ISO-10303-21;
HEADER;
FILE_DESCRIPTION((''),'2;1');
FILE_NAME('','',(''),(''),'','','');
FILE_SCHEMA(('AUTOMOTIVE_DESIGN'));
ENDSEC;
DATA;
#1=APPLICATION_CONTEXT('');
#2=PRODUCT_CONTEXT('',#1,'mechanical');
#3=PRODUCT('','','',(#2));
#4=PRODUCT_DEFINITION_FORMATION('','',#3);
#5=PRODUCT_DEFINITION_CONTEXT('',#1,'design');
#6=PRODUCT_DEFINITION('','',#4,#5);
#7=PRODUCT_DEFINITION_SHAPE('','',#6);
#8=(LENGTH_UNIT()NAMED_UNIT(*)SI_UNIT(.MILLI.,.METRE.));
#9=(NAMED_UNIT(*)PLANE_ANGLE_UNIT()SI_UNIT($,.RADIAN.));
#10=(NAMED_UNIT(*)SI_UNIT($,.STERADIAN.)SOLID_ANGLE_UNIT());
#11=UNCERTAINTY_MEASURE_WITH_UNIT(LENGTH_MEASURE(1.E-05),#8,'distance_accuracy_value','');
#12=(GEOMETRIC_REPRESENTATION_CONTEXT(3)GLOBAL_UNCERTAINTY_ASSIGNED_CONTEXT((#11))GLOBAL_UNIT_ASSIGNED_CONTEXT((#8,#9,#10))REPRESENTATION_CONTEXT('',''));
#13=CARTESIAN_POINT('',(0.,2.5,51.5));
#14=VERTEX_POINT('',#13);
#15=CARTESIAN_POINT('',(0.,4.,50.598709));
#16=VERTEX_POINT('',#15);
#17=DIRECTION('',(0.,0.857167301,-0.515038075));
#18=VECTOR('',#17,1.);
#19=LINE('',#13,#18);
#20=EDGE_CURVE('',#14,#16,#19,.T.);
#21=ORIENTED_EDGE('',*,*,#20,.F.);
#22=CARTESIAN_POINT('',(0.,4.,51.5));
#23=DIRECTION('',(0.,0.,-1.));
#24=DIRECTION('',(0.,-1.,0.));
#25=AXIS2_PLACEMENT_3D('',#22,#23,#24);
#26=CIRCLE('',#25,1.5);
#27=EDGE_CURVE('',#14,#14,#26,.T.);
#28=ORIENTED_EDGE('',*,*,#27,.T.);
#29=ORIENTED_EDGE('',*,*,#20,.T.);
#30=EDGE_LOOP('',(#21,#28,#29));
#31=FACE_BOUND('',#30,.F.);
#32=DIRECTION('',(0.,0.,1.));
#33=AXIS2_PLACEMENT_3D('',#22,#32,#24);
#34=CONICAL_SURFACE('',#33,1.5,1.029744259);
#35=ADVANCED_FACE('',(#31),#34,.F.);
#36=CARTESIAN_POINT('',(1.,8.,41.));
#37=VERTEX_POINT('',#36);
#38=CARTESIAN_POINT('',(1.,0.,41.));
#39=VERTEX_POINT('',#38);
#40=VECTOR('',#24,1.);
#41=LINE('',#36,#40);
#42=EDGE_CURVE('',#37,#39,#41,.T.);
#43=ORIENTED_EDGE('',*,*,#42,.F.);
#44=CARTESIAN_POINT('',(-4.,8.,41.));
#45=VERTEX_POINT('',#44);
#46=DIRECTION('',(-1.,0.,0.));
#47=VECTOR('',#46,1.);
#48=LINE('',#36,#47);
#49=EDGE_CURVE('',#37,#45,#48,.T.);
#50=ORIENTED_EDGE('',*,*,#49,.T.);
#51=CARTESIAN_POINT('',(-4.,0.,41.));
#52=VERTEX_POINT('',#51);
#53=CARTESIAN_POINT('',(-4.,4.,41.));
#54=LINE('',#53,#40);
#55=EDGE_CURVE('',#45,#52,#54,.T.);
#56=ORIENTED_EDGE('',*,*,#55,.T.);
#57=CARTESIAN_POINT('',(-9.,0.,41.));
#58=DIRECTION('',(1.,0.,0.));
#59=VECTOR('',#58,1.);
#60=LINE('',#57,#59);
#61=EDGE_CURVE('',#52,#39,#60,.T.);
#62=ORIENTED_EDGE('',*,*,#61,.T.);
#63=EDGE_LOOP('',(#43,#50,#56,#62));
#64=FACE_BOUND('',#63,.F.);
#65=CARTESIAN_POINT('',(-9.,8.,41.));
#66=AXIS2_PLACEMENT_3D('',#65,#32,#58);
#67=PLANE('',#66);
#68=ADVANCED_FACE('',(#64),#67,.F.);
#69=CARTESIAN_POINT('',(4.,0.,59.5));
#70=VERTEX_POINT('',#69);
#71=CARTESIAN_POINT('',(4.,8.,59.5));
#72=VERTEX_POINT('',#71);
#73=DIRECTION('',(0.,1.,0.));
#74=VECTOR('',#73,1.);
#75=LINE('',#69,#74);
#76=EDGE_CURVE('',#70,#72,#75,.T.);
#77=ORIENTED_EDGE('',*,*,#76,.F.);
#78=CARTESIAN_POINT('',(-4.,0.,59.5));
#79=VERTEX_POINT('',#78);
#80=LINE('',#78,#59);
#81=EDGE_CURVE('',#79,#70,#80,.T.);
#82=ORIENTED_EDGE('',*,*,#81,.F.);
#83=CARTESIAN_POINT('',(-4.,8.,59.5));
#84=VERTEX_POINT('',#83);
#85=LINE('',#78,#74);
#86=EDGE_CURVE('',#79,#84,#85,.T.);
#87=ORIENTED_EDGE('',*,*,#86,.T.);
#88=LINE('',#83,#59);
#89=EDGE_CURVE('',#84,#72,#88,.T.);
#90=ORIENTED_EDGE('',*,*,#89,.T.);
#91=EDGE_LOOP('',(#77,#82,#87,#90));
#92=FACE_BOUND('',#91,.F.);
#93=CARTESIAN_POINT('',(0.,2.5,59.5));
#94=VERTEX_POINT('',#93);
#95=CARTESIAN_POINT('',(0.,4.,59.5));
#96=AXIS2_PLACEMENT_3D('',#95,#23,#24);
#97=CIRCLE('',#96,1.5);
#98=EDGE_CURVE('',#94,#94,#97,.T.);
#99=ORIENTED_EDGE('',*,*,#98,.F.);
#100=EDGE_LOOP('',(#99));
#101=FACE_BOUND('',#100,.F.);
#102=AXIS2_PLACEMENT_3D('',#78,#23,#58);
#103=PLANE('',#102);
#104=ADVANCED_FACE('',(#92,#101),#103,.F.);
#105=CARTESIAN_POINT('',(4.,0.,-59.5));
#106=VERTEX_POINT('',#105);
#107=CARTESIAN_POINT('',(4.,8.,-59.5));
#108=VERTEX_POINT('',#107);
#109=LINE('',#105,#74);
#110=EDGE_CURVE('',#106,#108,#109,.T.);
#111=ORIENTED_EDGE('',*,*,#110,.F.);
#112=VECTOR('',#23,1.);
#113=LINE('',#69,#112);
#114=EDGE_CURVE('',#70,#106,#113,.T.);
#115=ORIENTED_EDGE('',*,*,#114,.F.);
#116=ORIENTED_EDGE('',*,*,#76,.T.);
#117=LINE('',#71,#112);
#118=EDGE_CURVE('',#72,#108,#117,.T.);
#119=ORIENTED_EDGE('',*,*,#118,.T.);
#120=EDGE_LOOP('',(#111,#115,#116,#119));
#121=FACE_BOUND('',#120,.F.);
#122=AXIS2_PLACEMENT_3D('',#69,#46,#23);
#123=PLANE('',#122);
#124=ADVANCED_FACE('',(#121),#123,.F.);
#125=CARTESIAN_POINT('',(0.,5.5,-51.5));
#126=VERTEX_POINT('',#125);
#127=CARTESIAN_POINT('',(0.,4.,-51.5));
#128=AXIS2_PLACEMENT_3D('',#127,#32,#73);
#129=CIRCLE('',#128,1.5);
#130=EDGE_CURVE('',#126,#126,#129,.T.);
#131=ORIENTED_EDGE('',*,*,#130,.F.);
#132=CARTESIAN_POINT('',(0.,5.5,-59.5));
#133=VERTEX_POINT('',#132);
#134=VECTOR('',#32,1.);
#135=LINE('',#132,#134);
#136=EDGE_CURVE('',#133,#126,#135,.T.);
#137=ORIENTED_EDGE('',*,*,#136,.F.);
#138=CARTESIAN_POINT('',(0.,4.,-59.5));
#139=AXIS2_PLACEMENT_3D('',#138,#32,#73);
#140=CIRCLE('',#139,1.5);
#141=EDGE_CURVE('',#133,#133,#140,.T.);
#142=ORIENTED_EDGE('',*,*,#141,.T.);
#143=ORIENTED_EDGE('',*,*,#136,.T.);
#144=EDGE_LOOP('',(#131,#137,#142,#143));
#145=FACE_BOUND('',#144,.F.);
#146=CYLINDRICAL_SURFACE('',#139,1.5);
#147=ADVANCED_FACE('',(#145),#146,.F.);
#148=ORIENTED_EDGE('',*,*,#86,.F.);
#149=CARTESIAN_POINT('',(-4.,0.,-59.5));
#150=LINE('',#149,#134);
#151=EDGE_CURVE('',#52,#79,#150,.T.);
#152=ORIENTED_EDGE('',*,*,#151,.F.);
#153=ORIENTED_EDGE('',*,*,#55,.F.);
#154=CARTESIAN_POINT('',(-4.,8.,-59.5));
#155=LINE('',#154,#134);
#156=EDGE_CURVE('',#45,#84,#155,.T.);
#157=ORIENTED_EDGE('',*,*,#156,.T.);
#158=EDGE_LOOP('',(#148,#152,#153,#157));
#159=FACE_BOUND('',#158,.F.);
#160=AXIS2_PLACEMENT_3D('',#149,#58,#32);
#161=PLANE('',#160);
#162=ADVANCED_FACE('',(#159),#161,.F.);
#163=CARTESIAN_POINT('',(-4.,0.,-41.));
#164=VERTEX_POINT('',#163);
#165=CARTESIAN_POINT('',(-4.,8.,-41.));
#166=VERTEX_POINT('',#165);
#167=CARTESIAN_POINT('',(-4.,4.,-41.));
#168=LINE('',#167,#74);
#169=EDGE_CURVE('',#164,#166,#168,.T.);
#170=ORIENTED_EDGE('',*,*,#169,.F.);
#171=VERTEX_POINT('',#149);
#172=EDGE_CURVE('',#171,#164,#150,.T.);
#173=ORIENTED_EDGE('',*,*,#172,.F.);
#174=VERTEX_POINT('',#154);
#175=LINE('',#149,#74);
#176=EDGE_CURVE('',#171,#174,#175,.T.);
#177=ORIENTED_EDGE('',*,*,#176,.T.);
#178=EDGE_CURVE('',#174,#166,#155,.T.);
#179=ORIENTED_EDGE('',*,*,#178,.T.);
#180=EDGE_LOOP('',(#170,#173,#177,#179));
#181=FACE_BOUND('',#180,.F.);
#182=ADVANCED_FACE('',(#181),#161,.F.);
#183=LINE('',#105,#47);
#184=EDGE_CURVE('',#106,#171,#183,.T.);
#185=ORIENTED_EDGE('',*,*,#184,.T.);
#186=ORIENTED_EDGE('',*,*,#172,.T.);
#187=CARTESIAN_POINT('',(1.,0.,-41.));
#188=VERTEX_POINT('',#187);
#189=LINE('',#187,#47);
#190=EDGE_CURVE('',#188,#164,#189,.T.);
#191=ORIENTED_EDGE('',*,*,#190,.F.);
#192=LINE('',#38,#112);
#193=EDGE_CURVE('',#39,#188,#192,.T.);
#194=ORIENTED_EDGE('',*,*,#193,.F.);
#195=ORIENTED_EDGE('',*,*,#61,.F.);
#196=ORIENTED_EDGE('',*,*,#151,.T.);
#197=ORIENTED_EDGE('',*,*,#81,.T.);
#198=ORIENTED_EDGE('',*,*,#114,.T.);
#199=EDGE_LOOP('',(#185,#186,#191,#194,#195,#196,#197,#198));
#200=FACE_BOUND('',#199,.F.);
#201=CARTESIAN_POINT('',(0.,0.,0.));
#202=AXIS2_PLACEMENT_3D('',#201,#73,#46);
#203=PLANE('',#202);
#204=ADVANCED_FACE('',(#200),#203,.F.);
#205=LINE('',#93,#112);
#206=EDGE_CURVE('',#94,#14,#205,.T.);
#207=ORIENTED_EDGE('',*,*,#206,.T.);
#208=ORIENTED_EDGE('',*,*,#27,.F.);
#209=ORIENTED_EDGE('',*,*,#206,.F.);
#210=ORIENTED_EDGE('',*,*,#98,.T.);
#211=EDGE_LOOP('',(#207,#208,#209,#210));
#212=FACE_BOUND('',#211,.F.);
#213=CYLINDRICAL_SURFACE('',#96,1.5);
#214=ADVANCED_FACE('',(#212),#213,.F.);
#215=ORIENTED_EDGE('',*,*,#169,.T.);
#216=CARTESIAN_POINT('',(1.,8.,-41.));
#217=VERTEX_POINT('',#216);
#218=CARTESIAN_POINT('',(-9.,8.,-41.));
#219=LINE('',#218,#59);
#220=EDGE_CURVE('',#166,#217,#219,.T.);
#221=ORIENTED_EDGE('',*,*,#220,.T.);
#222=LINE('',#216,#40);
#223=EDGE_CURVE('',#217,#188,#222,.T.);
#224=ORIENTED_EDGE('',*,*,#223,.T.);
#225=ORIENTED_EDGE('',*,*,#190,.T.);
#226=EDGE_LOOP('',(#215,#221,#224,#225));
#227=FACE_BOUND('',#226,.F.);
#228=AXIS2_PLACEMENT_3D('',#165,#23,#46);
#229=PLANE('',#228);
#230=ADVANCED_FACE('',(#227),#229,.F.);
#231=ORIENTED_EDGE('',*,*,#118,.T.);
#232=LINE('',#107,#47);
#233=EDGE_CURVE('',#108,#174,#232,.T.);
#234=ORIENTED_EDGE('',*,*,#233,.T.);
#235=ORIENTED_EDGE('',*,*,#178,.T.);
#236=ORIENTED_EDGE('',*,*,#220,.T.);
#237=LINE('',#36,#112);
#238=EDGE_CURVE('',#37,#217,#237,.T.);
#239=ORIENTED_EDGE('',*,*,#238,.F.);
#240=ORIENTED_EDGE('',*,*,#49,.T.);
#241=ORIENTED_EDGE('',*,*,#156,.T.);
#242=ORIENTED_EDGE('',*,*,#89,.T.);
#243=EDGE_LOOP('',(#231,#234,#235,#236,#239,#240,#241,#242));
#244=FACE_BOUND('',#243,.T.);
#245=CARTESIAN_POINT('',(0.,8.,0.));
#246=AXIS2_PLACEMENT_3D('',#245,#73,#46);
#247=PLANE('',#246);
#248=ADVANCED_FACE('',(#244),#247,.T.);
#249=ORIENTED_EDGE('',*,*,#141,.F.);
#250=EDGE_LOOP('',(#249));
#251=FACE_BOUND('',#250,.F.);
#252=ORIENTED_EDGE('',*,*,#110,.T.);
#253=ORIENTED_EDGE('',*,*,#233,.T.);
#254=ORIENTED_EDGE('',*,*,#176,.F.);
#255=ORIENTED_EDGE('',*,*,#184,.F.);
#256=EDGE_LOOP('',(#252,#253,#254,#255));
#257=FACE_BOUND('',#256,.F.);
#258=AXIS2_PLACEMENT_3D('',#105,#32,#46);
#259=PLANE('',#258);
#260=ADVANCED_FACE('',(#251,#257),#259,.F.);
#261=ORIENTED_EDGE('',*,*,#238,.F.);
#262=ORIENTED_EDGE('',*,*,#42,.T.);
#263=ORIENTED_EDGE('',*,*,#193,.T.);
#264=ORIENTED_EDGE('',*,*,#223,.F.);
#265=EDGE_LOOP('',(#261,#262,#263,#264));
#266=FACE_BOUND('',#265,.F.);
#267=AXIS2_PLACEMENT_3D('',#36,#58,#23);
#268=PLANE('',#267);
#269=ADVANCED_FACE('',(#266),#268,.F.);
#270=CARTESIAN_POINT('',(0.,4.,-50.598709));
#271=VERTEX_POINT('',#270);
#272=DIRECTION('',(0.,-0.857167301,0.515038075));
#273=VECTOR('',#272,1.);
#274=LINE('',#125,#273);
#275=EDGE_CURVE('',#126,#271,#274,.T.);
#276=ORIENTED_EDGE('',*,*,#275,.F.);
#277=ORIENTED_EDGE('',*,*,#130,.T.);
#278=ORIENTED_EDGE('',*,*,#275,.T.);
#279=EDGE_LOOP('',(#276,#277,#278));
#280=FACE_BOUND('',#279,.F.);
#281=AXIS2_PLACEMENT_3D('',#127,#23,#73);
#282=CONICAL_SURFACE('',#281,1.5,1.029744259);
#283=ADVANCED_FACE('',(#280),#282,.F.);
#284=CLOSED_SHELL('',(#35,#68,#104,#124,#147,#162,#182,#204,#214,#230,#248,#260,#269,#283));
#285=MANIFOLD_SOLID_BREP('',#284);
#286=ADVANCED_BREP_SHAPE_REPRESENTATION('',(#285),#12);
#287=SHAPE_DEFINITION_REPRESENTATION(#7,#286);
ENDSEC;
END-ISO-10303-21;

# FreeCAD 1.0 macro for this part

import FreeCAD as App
import Part
import Sketcher
from FreeCAD import Vector
Q = App.Units.Quantity


def add_polygon(sketch, points):
    """Adds a closed chain of lines whose ends are joined by coincident constraints."""
    first, n = sketch.GeometryCount, len(points)
    for a, b in zip(points, points[1:] + points[:1]):
        sketch.addGeometry(Part.LineSegment(App.Vector(*a, 0), App.Vector(*b, 0)), False)
    for i in range(n):
        sketch.addConstraint(Sketcher.Constraint("Coincident", first + i, 2, first + (i + 1) % n, 1))

doc = App.newDocument("Part")
body = doc.addObject("PartDesign::Body", "Body")

# Sketch on XZ plane
sketch1 = doc.addObject("Sketcher::SketchObject", "Sketch")
body.addObject(sketch1)
sketch1.AttachmentSupport = (doc.XZ_Plane, [""])
sketch1.MapMode = "FlatFace"
add_polygon(sketch1, [(-4, -60), (-4, 60), (4, 60), (4, -60)])  # lines 0-3
sketch1.addConstraint([
    Sketcher.Constraint("Vertical", 0),
    Sketcher.Constraint("Horizontal", 1),
    Sketcher.Constraint("Vertical", 2),
    Sketcher.Constraint("Horizontal", 3),
    Sketcher.Constraint("Symmetric", 0, 2, 2, 2, -1, 1),
    Sketcher.Constraint("DistanceX", 1, 1, 1, 2, Q("8 mm")),
    Sketcher.Constraint("DistanceY", 0, 1, 0, 2, Q("119 mm")),
])
pad1 = doc.addObject("PartDesign::Pad", "Pad")
body.addObject(pad1)
pad1.Profile = sketch1
pad1.Length = 8
pad1.Reversed = True

# Sketch on XZ plane
sketch2 = doc.addObject("Sketcher::SketchObject", "Sketch001")
body.addObject(sketch2)
sketch2.AttachmentSupport = (doc.XZ_Plane, [""])
sketch2.MapMode = "FlatFace"
sketch2.AttachmentOffset = App.Placement(Vector(0, 0, -8), App.Rotation())
add_polygon(sketch2, [(-9, -41), (-9, 41), (1, 41), (1, -41)])  # lines 0-3
sketch2.addConstraint([
    Sketcher.Constraint("Vertical", 0),
    Sketcher.Constraint("Horizontal", 1),
    Sketcher.Constraint("Vertical", 2),
    Sketcher.Constraint("Horizontal", 3),
    Sketcher.Constraint("DistanceX", 1, 1, 1, 2, Q("10 mm")),
    Sketcher.Constraint("DistanceY", 0, 1, 0, 2, Q("82 mm")),
    Sketcher.Constraint("DistanceX", 0, 2, -1, 1, Q("9 mm")),
    Sketcher.Constraint("DistanceY", -1, 1, 0, 2, Q("41 mm")),
])
pocket1 = doc.addObject("PartDesign::Pocket", "Pocket")
body.addObject(pocket1)
pocket1.Profile = sketch2
pocket1.Length = 8
pocket1.Reversed = True

# Sketch on XY plane
sketch3 = doc.addObject("Sketcher::SketchObject", "Sketch002")
body.addObject(sketch3)
sketch3.AttachmentSupport = (doc.XY_Plane, [""])
sketch3.MapMode = "FlatFace"
sketch3.AttachmentOffset = App.Placement(Vector(0, 0, 59.5), App.Rotation())
sketch3.addGeometry(Part.Circle(Vector(0, 4, 0), Vector(0, 0, 1), 1.5), False)
sketch3.addConstraint([
    Sketcher.Constraint("PointOnObject", 0, 3, -2),
    Sketcher.Constraint("Diameter", 0, Q("3 mm")),
    Sketcher.Constraint("DistanceY", -1, 1, 0, 3, Q("4 mm")),
])
doc.recompute()
hole = doc.addObject("PartDesign::Hole", "Hole")
body.addObject(hole)
hole.Profile = sketch3
hole.ThreadType = "None"
hole.Diameter = 3
hole.DepthType = "Dimension"
hole.Depth = 8
hole.DrillPoint = "Angled"
hole.DrillPointAngle = 118

# Sketch on XY plane
sketch4 = doc.addObject("Sketcher::SketchObject", "Sketch003")
body.addObject(sketch4)
sketch4.AttachmentSupport = (doc.XY_Plane, [""])
sketch4.MapMode = "FlatFace"
sketch4.AttachmentOffset = App.Placement(Vector(0, 0, -59.5), App.Rotation())
sketch4.addGeometry(Part.Circle(Vector(0, 4, 0), Vector(0, 0, 1), 1.5), False)
sketch4.addConstraint([
    Sketcher.Constraint("PointOnObject", 0, 3, -2),
    Sketcher.Constraint("Diameter", 0, Q("3 mm")),
    Sketcher.Constraint("DistanceY", -1, 1, 0, 3, Q("4 mm")),
])
doc.recompute()
hole2 = doc.addObject("PartDesign::Hole", "Hole001")
body.addObject(hole2)
hole2.Profile = sketch4
hole2.ThreadType = "None"
hole2.Diameter = 3
hole2.DepthType = "Dimension"
hole2.Depth = 8
hole2.DrillPoint = "Angled"
hole2.DrillPointAngle = 118
hole2.Reversed = True

doc.recompute()
